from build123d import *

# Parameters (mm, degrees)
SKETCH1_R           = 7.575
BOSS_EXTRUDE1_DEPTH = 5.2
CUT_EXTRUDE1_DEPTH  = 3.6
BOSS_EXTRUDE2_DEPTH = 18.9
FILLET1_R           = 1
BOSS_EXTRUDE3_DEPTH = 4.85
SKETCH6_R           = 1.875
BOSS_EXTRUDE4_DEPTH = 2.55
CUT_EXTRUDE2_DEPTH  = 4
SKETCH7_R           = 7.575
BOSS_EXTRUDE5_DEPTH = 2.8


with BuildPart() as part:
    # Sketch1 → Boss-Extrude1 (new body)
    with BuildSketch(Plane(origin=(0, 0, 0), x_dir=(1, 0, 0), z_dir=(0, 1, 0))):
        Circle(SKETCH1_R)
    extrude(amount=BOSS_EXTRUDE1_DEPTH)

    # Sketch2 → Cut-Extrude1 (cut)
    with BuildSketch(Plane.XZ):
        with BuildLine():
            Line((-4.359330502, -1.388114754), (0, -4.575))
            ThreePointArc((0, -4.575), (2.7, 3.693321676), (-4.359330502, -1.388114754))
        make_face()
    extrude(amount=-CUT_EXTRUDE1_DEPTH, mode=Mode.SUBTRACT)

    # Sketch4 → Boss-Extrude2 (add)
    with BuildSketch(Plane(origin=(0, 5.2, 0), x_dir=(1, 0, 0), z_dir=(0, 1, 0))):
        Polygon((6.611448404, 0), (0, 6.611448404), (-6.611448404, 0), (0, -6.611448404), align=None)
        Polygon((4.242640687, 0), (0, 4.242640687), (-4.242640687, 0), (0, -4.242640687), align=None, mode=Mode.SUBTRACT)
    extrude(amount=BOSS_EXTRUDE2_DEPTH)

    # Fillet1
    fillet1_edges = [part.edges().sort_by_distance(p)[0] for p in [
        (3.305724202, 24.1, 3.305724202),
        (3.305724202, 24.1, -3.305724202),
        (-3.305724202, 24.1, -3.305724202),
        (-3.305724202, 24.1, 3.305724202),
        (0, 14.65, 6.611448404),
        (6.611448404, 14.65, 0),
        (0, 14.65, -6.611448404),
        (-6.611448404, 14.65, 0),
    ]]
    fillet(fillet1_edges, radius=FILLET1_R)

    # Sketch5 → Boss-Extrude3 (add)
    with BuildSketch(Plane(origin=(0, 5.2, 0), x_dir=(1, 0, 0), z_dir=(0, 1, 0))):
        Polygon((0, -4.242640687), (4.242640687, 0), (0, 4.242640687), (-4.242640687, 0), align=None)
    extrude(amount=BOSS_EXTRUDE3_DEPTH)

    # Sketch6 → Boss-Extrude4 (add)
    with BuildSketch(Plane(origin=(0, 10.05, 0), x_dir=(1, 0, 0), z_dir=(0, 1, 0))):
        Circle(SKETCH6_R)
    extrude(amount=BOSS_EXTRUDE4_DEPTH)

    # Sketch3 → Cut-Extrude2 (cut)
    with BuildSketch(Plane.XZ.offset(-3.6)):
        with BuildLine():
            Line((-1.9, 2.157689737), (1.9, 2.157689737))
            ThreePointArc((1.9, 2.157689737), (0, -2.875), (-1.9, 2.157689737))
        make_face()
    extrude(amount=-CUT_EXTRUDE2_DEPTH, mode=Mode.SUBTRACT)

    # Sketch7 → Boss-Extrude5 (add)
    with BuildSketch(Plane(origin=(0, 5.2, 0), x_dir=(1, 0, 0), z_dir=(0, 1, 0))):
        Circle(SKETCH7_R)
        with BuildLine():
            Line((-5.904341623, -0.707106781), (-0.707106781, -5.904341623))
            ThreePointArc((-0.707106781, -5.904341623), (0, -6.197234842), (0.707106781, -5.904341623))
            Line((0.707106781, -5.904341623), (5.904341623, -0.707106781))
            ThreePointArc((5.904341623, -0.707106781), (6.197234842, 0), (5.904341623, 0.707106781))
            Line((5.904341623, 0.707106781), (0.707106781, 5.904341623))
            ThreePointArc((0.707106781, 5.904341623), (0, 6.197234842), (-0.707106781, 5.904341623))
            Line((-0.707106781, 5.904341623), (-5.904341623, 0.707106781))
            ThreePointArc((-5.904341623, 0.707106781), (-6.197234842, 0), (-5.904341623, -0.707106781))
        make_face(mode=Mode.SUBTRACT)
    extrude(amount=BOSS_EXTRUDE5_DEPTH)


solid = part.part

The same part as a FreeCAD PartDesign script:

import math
import FreeCAD as App
import Part
import Sketcher
Q = App.Units.Quantity


def edges_at(feature, points):
    """Names of the edges that pass closest to the given points."""
    edges = feature.Shape.Edges
    near = lambda p: min(range(len(edges)), key=lambda i: edges[i].distToShape(Part.Vertex(*p))[0])
    return sorted({f"Edge{near(p) + 1}" for p in points})


def add_polygon(sketch, points):
    """Adds a closed chain of lines whose ends are joined by coincident constraints."""
    first, n = sketch.GeometryCount, len(points)
    for a, b in zip(points, points[1:] + points[:1]):
        sketch.addGeometry(Part.LineSegment(App.Vector(*a, 0), App.Vector(*b, 0)), False)
    for i in range(n):
        sketch.addConstraint(Sketcher.Constraint("Coincident", first + i, 2, first + (i + 1) % n, 1))

doc = App.newDocument("Part")
body = doc.addObject("PartDesign::Body", "Body")

# Sketch on XZ plane
sketch1 = body.newObject("Sketcher::SketchObject", "Sketch")
sketch1.AttachmentSupport = (doc.getObject("XZ_Plane"), [""])
sketch1.MapMode = "FlatFace"
sketch1.addGeometry(Part.Circle(App.Vector(0, 0, 0), App.Vector(0, 0, 1), 8), False)
sketch1.addConstraint([
    Sketcher.Constraint("Coincident", 0, 3, -1, 1),
    Sketcher.Constraint("Diameter", 0, Q("15.15 mm")),
])
pad1 = body.newObject("PartDesign::Pad", "Pad")
pad1.Profile = sketch1
pad1.Length = 5.2
pad1.Reversed = True

# Sketch on XZ plane
sketch2 = body.newObject("Sketcher::SketchObject", "Sketch001")
sketch2.AttachmentSupport = (doc.getObject("XZ_Plane"), [""])
sketch2.MapMode = "FlatFace"
sketch2.addGeometry([
    Part.LineSegment(App.Vector(-4.4, -1.4, 0), App.Vector(0, -4.6, 0)),
    Part.ArcOfCircle(Part.Circle(App.Vector(0, 0, 0), App.Vector(0, 0, 1), 4.6), math.radians(-90), math.radians(198)),
], False)
sketch2.addConstraint([
    Sketcher.Constraint("Coincident", 0, 1, 1, 2),
    Sketcher.Constraint("Coincident", 1, 1, 0, 2),
    Sketcher.Constraint("Coincident", 1, 3, -1, 1),
    Sketcher.Constraint("PointOnObject", 1, 1, -2),
    Sketcher.Constraint("Radius", 1, Q("4.575 mm")),
    Sketcher.Constraint("Distance", 0, Q("5.4 mm")),
])
pocket1 = body.newObject("PartDesign::Pocket", "Pocket")
pocket1.Profile = sketch2
pocket1.Length = 3.6

# Sketch on XZ plane
sketch3 = body.newObject("Sketcher::SketchObject", "Sketch002")
sketch3.AttachmentSupport = (doc.getObject("XZ_Plane"), [""])
sketch3.MapMode = "FlatFace"
sketch3.AttachmentOffset = App.Placement(App.Vector(0, 0, -5.2), App.Rotation())
add_polygon(sketch3, [(7, 0), (0, -7), (-7, 0), (0, 7)])  # lines 0-3
add_polygon(sketch3, [(0, -4), (4, 0), (0, 4), (-4, 0)])  # lines 4-7
sketch3.addConstraint([
    Sketcher.Constraint("Symmetric", 0, 2, 2, 2, -1, 1),
    Sketcher.Constraint("Symmetric", 1, 2, 3, 2, -1, 1),
    Sketcher.Constraint("Symmetric", 4, 2, 6, 2, -1, 1),
    Sketcher.Constraint("Symmetric", 5, 2, 7, 2, -1, 1),
    Sketcher.Constraint("PointOnObject", 0, 2, -2),
    Sketcher.Constraint("PointOnObject", 1, 2, -1),
    Sketcher.Constraint("PointOnObject", 4, 2, -1),
    Sketcher.Constraint("PointOnObject", 5, 2, -2),
    Sketcher.Constraint("Perpendicular", 0, 1),
    Sketcher.Constraint("Perpendicular", 3, 4),
    Sketcher.Constraint("Distance", 4, Q("6 mm")),
    Sketcher.Constraint("Distance", 0, Q("9.35 mm")),
])
pad2 = body.newObject("PartDesign::Pad", "Pad001")
pad2.Profile = sketch3
pad2.Length = 18.9
pad2.Reversed = True
doc.recompute()

fillet = body.newObject("PartDesign::Fillet", "Fillet")
fillet.Base = (pad2, edges_at(pad2, [
    (3.306, 24.1, 3.306),
    (3.306, 24.1, -3.306),
    (-3.306, 24.1, -3.306),
    (-3.306, 24.1, 3.306),
    (0, 14.65, 6.611),
    (6.611, 14.65, 0),
    (0, 14.65, -6.611),
    (-6.611, 14.65, 0),
]))
fillet.Radius = 1

# Sketch on XZ plane
sketch4 = body.newObject("Sketcher::SketchObject", "Sketch003")
sketch4.AttachmentSupport = (doc.getObject("XZ_Plane"), [""])
sketch4.MapMode = "FlatFace"
sketch4.AttachmentOffset = App.Placement(App.Vector(0, 0, -5.2), App.Rotation())
add_polygon(sketch4, [(0, 4), (4, 0), (0, -4), (-4, 0)])  # lines 0-3
sketch4.addConstraint([
    Sketcher.Constraint("Symmetric", 0, 2, 2, 2, -1, 1),
    Sketcher.Constraint("Symmetric", 1, 2, 3, 2, -1, 1),
    Sketcher.Constraint("PointOnObject", 0, 2, -1),
    Sketcher.Constraint("PointOnObject", 1, 2, -2),
    Sketcher.Constraint("Perpendicular", 0, 1),
    Sketcher.Constraint("Distance", 0, Q("6 mm")),
])
pad3 = body.newObject("PartDesign::Pad", "Pad002")
pad3.Profile = sketch4
pad3.Length = 4.85
pad3.Reversed = True

# Sketch on XZ plane
sketch5 = body.newObject("Sketcher::SketchObject", "Sketch004")
sketch5.AttachmentSupport = (doc.getObject("XZ_Plane"), [""])
sketch5.MapMode = "FlatFace"
sketch5.AttachmentOffset = App.Placement(App.Vector(0, 0, -10.05), App.Rotation())
sketch5.addGeometry(Part.Circle(App.Vector(0, 0, 0), App.Vector(0, 0, 1), 1.9), False)
sketch5.addConstraint([
    Sketcher.Constraint("Coincident", 0, 3, -1, 1),
    Sketcher.Constraint("Diameter", 0, Q("3.75 mm")),
])
pad4 = body.newObject("PartDesign::Pad", "Pad003")
pad4.Profile = sketch5
pad4.Length = 2.55
pad4.Reversed = True

# Sketch on XZ plane
sketch6 = body.newObject("Sketcher::SketchObject", "Sketch005")
sketch6.AttachmentSupport = (doc.getObject("XZ_Plane"), [""])
sketch6.MapMode = "FlatFace"
sketch6.AttachmentOffset = App.Placement(App.Vector(0, 0, -3.6), App.Rotation())
sketch6.addGeometry([
    Part.LineSegment(App.Vector(1.9, 2.2, 0), App.Vector(-1.9, 2.2, 0)),
    Part.ArcOfCircle(Part.Circle(App.Vector(0, 0, 0), App.Vector(0, 0, 1), 2.9), math.radians(131), math.radians(409)),
], False)
sketch6.addConstraint([
    Sketcher.Constraint("Coincident", 0, 1, 1, 2),
    Sketcher.Constraint("Coincident", 1, 1, 0, 2),
    Sketcher.Constraint("Horizontal", 0),
    Sketcher.Constraint("Coincident", 1, 3, -1, 1),
    Sketcher.Constraint("DistanceX", 0, 2, 0, 1, Q("3.8 mm")),
    Sketcher.Constraint("Radius", 1, Q("2.875 mm")),
])
pocket2 = body.newObject("PartDesign::Pocket", "Pocket001")
pocket2.Profile = sketch6
pocket2.Length = 4

# Sketch on XZ plane
sketch7 = body.newObject("Sketcher::SketchObject", "Sketch006")
sketch7.AttachmentSupport = (doc.getObject("XZ_Plane"), [""])
sketch7.MapMode = "FlatFace"
sketch7.AttachmentOffset = App.Placement(App.Vector(0, 0, -5.2), App.Rotation())
sketch7.addGeometry([
    Part.Circle(App.Vector(0, 0, 0), App.Vector(0, 0, 1), 7.6),  # 0
    Part.LineSegment(App.Vector(-0.7, 5.9, 0), App.Vector(-5.9, 0.7, 0)),  # 1
    Part.ArcOfCircle(Part.Circle(App.Vector(-5.2, 0, 0), App.Vector(0, 0, 1), 1), math.radians(135), math.radians(225)),  # 2
    Part.LineSegment(App.Vector(-5.9, -0.7, 0), App.Vector(-0.7, -5.9, 0)),  # 3
    Part.ArcOfCircle(Part.Circle(App.Vector(0, -5.2, 0), App.Vector(0, 0, 1), 1), math.radians(-135), math.radians(-45)),  # 4
    Part.LineSegment(App.Vector(0.7, -5.9, 0), App.Vector(5.9, -0.7, 0)),  # 5
    Part.ArcOfCircle(Part.Circle(App.Vector(5.2, 0, 0), App.Vector(0, 0, 1), 1), math.radians(-45), math.radians(45)),  # 6
    Part.LineSegment(App.Vector(5.9, 0.7, 0), App.Vector(0.7, 5.9, 0)),  # 7
    Part.ArcOfCircle(Part.Circle(App.Vector(0, 5.2, 0), App.Vector(0, 0, 1), 1), math.radians(45), math.radians(135)),  # 8
], False)
sketch7.addConstraint([
    Sketcher.Constraint("Tangent", 1, 2, 2, 1),
    Sketcher.Constraint("Tangent", 2, 2, 3, 1),
    Sketcher.Constraint("Tangent", 3, 2, 4, 1),
    Sketcher.Constraint("Tangent", 4, 2, 5, 1),
    Sketcher.Constraint("Tangent", 5, 2, 6, 1),
    Sketcher.Constraint("Tangent", 6, 2, 7, 1),
    Sketcher.Constraint("Tangent", 7, 2, 8, 1),
    Sketcher.Constraint("Tangent", 8, 2, 1, 1),
    Sketcher.Constraint("Coincident", 0, 3, -1, 1),
    Sketcher.Constraint("Equal", 2, 4),
    Sketcher.Constraint("Equal", 4, 6),
    Sketcher.Constraint("Equal", 6, 8),
    Sketcher.Constraint("Symmetric", 2, 3, 6, 3, -1, 1),
    Sketcher.Constraint("Symmetric", 4, 3, 8, 3, -1, 1),
    Sketcher.Constraint("Symmetric", 3, 2, 4, 2, -2),
    Sketcher.Constraint("Perpendicular", 1, 3),
    Sketcher.Constraint("Radius", 2, Q("1 mm")),
    Sketcher.Constraint("Diameter", 0, Q("15.15 mm")),
    Sketcher.Constraint("Distance", 1, Q("7.35 mm")),
])
pad5 = body.newObject("PartDesign::Pad", "Pad004")
pad5.Profile = sketch7
pad5.Length = 2.8
pad5.Reversed = True

doc.recompute()
